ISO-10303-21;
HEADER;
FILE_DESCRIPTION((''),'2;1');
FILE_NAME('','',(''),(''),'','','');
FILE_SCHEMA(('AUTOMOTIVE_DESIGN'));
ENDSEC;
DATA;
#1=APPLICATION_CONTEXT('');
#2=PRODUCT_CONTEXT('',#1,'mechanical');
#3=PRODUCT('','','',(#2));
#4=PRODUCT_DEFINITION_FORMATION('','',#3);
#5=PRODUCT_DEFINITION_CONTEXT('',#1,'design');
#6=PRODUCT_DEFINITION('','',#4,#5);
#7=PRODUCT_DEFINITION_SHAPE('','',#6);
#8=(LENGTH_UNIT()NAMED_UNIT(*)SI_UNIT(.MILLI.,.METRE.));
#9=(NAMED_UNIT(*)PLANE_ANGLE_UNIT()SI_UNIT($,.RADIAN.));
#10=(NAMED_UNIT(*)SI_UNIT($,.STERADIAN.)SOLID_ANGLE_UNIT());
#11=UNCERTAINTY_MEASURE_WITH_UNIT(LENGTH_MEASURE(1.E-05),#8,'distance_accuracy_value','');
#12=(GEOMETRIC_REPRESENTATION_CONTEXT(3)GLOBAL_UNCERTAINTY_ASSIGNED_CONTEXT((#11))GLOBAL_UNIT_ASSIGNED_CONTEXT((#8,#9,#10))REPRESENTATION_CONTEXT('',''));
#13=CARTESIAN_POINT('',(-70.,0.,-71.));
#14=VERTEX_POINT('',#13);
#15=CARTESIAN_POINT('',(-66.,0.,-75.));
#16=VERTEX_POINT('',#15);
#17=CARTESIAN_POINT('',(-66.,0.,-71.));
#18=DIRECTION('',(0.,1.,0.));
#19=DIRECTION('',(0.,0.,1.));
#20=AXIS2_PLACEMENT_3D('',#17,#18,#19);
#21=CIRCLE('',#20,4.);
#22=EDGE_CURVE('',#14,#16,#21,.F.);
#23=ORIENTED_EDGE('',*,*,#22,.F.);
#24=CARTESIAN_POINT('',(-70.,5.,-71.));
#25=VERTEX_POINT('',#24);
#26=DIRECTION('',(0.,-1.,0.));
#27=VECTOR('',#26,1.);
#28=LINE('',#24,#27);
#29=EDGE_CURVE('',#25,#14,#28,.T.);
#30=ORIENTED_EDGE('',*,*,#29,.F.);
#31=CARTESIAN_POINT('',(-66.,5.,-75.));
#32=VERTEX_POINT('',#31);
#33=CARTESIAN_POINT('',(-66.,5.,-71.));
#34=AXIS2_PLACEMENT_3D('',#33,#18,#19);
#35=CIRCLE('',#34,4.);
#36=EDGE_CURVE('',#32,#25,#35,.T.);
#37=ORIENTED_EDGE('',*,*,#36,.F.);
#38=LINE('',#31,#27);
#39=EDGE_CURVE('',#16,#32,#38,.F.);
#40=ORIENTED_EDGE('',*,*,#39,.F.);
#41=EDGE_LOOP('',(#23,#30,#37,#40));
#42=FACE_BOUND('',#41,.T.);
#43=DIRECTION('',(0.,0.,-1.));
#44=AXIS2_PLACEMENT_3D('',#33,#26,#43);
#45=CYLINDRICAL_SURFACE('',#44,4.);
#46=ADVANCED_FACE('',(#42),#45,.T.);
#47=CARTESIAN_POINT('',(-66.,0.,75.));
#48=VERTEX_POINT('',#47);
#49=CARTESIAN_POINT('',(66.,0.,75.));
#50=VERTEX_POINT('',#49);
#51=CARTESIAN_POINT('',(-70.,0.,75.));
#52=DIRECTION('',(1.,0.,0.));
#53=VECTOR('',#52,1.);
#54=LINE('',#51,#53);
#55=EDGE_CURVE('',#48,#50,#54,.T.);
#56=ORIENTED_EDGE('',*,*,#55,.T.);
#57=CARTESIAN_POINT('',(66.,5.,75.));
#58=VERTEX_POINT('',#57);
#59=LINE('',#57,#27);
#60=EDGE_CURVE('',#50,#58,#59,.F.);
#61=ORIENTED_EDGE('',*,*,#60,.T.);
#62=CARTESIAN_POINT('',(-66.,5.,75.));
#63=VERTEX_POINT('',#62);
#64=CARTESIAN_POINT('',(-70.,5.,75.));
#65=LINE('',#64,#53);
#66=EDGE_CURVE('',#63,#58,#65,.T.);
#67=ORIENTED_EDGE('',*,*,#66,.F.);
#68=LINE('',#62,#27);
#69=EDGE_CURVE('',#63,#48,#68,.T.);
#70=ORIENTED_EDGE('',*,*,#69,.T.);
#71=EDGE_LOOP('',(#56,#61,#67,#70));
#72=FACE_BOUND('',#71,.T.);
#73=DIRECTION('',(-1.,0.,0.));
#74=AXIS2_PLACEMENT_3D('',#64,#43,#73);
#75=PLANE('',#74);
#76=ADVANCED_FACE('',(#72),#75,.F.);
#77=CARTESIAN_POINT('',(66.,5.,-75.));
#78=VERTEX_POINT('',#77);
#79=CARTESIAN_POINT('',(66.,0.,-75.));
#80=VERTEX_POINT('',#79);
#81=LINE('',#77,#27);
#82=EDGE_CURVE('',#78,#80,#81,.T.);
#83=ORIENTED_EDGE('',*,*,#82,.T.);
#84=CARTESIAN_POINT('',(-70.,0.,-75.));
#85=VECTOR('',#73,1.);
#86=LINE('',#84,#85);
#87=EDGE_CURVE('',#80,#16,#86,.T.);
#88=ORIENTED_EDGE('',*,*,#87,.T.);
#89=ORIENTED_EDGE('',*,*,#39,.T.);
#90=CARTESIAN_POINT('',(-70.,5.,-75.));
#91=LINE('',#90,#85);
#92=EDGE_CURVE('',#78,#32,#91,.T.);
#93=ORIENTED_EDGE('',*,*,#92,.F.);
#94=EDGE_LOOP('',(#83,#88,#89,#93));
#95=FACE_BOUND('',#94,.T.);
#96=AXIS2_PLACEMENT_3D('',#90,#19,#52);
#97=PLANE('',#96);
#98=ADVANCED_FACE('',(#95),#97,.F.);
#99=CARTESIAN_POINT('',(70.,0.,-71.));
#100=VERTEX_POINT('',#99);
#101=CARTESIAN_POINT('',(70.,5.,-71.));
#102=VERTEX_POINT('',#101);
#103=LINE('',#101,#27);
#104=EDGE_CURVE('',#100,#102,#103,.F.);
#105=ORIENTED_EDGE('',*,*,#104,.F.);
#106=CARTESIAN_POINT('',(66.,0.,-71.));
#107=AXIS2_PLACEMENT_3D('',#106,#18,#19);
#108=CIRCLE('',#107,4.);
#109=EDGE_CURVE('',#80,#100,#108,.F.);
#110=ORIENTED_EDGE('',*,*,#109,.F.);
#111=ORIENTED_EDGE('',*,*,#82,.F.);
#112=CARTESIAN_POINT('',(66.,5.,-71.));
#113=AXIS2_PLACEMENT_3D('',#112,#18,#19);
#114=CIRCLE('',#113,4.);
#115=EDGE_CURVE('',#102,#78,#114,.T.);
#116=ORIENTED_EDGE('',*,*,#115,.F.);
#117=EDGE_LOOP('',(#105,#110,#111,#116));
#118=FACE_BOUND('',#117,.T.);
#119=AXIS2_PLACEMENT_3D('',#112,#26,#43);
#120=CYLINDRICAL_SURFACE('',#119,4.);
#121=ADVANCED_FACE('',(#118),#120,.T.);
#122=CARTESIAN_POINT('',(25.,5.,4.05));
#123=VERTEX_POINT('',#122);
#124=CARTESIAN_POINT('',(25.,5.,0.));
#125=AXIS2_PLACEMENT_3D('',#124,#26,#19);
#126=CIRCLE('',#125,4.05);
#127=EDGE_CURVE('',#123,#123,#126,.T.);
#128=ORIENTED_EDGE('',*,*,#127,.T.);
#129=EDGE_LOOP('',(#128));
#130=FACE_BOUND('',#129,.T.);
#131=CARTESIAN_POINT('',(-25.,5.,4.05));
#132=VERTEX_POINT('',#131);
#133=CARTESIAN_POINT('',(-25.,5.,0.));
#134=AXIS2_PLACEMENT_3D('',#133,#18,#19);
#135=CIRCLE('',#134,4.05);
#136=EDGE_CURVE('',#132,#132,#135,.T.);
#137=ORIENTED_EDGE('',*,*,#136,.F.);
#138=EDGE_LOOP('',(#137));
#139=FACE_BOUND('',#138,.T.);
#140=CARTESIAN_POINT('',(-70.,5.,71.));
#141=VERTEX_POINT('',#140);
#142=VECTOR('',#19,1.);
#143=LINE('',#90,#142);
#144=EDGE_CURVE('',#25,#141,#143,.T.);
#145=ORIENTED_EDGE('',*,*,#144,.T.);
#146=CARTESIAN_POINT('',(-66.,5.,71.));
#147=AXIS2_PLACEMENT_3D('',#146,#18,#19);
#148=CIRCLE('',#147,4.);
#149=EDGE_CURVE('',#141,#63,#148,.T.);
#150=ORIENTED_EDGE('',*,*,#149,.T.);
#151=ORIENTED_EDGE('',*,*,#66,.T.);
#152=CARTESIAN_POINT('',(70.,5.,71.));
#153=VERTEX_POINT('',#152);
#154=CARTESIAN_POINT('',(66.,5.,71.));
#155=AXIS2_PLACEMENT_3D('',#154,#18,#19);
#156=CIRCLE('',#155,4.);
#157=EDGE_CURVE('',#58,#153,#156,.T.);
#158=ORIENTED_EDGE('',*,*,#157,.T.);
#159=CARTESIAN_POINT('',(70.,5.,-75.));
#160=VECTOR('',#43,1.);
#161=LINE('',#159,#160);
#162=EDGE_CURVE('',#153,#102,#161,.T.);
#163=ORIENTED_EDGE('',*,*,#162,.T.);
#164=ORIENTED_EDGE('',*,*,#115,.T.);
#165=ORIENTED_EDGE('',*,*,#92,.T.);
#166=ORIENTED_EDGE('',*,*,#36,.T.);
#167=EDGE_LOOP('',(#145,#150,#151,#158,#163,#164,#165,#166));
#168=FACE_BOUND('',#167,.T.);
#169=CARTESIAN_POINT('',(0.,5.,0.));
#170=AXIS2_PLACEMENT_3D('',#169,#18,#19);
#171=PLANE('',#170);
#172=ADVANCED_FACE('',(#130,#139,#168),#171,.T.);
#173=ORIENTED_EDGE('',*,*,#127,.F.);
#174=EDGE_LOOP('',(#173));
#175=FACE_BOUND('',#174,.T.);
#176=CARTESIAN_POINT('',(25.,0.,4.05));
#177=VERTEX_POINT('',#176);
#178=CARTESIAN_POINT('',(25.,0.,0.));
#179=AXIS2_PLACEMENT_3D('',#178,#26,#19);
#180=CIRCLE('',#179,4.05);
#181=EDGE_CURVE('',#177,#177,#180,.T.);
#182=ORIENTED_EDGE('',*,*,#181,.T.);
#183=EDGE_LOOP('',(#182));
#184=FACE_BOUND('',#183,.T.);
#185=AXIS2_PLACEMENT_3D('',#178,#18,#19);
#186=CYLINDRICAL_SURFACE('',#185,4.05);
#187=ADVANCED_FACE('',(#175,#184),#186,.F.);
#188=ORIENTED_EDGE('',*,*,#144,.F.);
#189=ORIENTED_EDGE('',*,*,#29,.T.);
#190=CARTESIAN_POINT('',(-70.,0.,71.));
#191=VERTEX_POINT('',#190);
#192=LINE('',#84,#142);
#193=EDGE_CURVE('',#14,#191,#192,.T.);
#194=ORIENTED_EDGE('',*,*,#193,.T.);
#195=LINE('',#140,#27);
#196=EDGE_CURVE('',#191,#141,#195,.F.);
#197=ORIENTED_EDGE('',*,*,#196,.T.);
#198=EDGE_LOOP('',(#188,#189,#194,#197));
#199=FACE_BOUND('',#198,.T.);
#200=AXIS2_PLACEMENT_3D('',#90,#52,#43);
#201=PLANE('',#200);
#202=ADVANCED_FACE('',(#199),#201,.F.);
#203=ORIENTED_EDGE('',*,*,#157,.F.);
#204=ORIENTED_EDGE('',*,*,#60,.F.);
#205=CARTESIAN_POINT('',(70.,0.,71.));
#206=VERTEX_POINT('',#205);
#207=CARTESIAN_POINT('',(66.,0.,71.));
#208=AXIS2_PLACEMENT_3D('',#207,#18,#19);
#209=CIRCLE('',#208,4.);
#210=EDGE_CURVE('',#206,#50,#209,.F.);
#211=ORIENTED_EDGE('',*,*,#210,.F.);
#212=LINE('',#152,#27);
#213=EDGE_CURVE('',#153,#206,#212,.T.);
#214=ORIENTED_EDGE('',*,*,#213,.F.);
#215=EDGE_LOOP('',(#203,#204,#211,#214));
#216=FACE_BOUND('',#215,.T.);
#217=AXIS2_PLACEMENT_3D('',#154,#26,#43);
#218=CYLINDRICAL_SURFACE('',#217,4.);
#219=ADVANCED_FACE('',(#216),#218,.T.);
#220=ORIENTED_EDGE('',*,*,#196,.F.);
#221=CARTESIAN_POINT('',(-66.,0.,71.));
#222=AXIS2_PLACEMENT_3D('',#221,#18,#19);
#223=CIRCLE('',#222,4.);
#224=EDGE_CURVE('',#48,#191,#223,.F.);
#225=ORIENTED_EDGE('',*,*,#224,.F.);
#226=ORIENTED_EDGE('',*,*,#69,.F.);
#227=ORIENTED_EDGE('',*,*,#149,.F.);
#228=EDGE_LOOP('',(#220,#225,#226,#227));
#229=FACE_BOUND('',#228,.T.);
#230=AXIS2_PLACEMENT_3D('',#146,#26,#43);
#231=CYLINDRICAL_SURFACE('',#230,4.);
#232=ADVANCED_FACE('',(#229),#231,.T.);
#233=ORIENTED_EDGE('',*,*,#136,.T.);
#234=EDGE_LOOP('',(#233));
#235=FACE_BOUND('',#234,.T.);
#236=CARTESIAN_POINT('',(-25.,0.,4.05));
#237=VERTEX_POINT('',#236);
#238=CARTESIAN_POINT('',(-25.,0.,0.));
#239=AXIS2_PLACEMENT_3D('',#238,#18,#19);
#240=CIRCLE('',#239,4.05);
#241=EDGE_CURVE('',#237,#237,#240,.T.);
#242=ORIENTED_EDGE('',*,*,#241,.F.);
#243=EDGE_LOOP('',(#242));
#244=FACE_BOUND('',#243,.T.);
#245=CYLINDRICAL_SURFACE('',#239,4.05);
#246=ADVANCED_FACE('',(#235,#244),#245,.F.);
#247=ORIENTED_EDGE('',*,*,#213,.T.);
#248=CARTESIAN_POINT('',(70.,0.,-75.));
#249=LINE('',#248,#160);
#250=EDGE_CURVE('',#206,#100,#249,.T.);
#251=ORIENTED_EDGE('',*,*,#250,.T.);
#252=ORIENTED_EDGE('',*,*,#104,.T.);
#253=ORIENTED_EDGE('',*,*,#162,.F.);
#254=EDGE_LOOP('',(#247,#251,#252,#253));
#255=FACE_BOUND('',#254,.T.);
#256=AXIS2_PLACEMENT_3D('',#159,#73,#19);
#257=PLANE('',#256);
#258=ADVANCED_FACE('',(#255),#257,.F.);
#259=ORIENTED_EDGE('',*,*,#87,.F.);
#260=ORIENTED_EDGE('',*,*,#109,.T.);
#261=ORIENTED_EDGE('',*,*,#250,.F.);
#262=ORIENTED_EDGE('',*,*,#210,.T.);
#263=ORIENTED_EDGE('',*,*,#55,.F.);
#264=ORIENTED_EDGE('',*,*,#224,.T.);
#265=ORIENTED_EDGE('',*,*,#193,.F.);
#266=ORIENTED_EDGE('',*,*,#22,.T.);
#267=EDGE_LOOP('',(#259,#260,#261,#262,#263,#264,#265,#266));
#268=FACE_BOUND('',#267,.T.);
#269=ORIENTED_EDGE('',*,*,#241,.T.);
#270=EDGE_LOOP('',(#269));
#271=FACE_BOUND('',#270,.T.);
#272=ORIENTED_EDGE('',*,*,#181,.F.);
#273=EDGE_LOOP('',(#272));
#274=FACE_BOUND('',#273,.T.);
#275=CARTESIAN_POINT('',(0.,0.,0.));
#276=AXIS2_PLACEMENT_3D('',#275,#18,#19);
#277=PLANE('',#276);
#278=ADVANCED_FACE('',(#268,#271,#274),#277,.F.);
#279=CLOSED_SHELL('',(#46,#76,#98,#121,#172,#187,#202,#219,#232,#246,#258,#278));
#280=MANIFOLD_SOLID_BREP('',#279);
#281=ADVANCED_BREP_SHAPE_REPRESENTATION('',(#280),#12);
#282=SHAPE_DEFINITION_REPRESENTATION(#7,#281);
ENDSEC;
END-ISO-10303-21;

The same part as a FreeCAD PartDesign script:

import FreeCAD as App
import Part
import Sketcher
from FreeCAD import Vector
Q = App.Units.Quantity


def edges_at(feature, points):
    """Names of the edges that pass closest to the given points."""
    edges = feature.Shape.Edges
    near = lambda p: min(range(len(edges)), key=lambda i: edges[i].distToShape(Part.Vertex(*p))[0])
    return sorted({f"Edge{near(p) + 1}" for p in points})


def add_polygon(sketch, points):
    """Adds a closed chain of lines whose ends are joined by coincident constraints."""
    first, n = sketch.GeometryCount, len(points)
    for a, b in zip(points, points[1:] + points[:1]):
        sketch.addGeometry(Part.LineSegment(App.Vector(*a, 0), App.Vector(*b, 0)), False)
    for i in range(n):
        sketch.addConstraint(Sketcher.Constraint("Coincident", first + i, 2, first + (i + 1) % n, 1))

doc = App.newDocument("Part")
body = doc.addObject("PartDesign::Body", "Body")

sketch1 = doc.addObject("Sketcher::SketchObject", "Sketch")
body.addObject(sketch1)
sketch1.AttachmentSupport = (doc.XZ_Plane, [""])
sketch1.MapMode = "FlatFace"
add_polygon(sketch1, [(-70, -75), (-70, 75), (70, 75), (70, -75)])
sketch1.addConstraint(Sketcher.Constraint("Vertical", 0))
sketch1.addConstraint(Sketcher.Constraint("Horizontal", 1))
sketch1.addConstraint(Sketcher.Constraint("Vertical", 2))
sketch1.addConstraint(Sketcher.Constraint("Horizontal", 3))
sketch1.addConstraint(Sketcher.Constraint("Symmetric", 0, 2, 2, 2, -1, 1))
sketch1.addConstraint(Sketcher.Constraint("DistanceX", 1, 1, 1, 2, Q("140 mm")))
sketch1.addConstraint(Sketcher.Constraint("DistanceY", 0, 1, 0, 2, Q("150 mm")))
pad1 = doc.addObject("PartDesign::Pad", "Pad")
body.addObject(pad1)
pad1.Profile = sketch1
pad1.Length = 5
pad1.Reversed = True

sketch2 = doc.addObject("Sketcher::SketchObject", "Sketch001")
body.addObject(sketch2)
sketch2.AttachmentSupport = (doc.XZ_Plane, [""])
sketch2.MapMode = "FlatFace"
sketch2.AttachmentOffset = App.Placement(Vector(0, 0, -5), App.Rotation())
sketch2.addGeometry(Part.Circle(Vector(-25, 0, 0), Vector(0, 0, 1), 4), False)
sketch2.addConstraint(Sketcher.Constraint("PointOnObject", 0, 3, -1))
sketch2.addConstraint(Sketcher.Constraint("Diameter", 0, Q("8.1 mm")))
sketch2.addConstraint(Sketcher.Constraint("DistanceX", 0, 3, -1, 1, Q("25 mm")))
pocket1 = doc.addObject("PartDesign::Pocket", "Pocket")
body.addObject(pocket1)
pocket1.Profile = sketch2
pocket1.Type = "ThroughAll"
pocket1.Reversed = True
doc.recompute()

mirrored = doc.addObject("PartDesign::Mirrored", "Mirrored")
body.addObject(mirrored)
mirrored.Originals = [pocket1]
mirrored.MirrorPlane = (doc.YZ_Plane, [""])
body.Tip = mirrored
doc.recompute()

fillet = doc.addObject("PartDesign::Fillet", "Fillet")
body.addObject(fillet)
fillet.Base = (mirrored, edges_at(mirrored, [
    (70, 2.5, 75),
    (-70, 2.5, 75),
    (-70, 2.5, -75),
    (70, 2.5, -75),
]))
fillet.Radius = 4

doc.recompute()
